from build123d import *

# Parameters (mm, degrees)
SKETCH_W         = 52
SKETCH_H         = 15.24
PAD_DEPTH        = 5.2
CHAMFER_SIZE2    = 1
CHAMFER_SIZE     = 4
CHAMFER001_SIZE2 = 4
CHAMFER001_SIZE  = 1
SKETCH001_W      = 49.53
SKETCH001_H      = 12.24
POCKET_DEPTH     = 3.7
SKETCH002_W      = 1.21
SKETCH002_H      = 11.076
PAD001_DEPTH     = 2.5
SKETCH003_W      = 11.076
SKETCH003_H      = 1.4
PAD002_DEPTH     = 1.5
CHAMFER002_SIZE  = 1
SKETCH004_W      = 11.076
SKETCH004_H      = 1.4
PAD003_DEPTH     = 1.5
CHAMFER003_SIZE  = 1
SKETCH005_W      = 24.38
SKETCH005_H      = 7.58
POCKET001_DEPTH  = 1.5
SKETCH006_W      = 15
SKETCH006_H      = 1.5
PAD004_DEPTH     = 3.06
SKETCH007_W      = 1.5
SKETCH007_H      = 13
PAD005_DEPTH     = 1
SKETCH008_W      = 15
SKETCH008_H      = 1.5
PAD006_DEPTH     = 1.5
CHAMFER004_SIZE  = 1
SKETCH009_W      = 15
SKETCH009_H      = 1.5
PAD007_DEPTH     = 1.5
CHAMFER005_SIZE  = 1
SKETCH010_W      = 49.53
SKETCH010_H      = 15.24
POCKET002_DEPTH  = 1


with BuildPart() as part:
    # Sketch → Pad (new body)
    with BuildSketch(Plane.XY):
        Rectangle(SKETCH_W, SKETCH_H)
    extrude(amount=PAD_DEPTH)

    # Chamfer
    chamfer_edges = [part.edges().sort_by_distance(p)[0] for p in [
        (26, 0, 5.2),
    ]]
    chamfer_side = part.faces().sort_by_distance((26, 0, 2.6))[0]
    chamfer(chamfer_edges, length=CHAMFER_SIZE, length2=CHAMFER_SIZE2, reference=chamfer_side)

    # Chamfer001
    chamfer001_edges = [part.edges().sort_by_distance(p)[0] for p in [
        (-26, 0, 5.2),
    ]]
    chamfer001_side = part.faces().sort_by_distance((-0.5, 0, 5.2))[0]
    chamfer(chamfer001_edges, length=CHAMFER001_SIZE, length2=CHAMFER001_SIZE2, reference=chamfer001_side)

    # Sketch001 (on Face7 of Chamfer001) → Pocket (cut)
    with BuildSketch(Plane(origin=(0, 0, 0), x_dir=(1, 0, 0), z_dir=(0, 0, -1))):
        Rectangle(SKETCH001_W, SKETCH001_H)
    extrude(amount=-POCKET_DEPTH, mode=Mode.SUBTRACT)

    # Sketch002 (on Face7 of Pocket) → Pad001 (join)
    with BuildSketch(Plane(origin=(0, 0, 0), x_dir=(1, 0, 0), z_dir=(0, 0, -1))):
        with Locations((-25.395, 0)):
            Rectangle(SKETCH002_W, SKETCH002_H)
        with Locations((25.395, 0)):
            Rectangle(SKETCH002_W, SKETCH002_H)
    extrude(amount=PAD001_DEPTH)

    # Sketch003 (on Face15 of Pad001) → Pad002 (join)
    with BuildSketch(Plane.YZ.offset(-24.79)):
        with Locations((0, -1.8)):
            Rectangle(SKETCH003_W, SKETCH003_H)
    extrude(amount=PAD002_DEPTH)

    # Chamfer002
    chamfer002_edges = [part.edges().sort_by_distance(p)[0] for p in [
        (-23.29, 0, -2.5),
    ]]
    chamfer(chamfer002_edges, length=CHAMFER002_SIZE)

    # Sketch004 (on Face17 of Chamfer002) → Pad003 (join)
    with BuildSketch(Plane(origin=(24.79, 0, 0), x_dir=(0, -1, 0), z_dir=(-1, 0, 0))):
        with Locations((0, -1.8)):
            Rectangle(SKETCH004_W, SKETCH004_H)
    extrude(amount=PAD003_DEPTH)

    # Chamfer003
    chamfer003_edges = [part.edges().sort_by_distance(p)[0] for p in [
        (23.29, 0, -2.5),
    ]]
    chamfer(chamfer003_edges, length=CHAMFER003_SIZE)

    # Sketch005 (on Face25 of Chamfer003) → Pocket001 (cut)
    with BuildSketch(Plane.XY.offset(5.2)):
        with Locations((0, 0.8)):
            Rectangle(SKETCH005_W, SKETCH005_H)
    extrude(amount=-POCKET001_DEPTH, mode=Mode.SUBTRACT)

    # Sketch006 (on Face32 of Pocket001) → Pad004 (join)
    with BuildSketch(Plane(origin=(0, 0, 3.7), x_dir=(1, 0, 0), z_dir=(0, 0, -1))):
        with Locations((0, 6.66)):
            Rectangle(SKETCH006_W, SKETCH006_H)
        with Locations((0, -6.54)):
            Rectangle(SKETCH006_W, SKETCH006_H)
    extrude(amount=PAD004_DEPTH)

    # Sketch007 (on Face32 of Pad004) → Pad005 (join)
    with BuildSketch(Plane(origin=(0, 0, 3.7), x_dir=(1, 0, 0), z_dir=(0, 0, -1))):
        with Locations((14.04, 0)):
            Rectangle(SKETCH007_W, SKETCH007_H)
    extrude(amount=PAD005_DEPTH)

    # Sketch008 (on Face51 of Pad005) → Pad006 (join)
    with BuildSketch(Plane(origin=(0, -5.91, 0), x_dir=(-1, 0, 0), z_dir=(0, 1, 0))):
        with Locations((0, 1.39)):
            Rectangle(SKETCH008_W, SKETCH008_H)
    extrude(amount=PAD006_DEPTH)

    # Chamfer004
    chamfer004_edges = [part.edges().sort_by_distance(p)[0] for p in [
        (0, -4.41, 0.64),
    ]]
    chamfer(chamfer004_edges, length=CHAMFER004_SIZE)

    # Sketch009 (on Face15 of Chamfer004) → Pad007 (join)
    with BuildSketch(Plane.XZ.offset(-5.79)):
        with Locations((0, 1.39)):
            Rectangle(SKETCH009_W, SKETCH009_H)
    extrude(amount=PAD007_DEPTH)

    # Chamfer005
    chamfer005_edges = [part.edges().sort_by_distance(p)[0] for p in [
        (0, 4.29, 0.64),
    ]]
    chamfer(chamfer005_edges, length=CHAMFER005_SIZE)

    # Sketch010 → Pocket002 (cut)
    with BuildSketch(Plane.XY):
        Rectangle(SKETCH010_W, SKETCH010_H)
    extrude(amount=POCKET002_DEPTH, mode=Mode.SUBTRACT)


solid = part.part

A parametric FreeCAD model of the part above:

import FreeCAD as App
import Part
import Sketcher

V = App.Vector


def edges_at(feature, points):
    """Names of the edges that pass closest to the given points."""
    edges = feature.Shape.Edges
    near = lambda p: min(range(len(edges)), key=lambda i: edges[i].distToShape(Part.Vertex(*p))[0])
    return sorted({f"Edge{near(p) + 1}" for p in points})


def add_polygon(sketch, points):
    """Adds a closed chain of lines whose ends are joined by coincident constraints."""
    first, n = sketch.GeometryCount, len(points)
    for a, b in zip(points, points[1:] + points[:1]):
        sketch.addGeometry(Part.LineSegment(App.Vector(*a, 0), App.Vector(*b, 0)), False)
    for i in range(n):
        sketch.addConstraint(Sketcher.Constraint("Coincident", first + i, 2, first + (i + 1) % n, 1))

doc = App.newDocument("Part")
body = doc.addObject("PartDesign::Body", "Body")

# Sketch on XY plane
sketch1 = body.newObject("Sketcher::SketchObject", "Sketch")
sketch1.AttachmentSupport = (doc.getObject("XY_Plane"), [""])
sketch1.MapMode = "FlatFace"
add_polygon(sketch1, [(-26, 8), (-26, -8), (26, -8), (26, 8)])  # lines 0-3
sketch1.addConstraint([
    Sketcher.Constraint("Vertical", 0),
    Sketcher.Constraint("Horizontal", 1),
    Sketcher.Constraint("Vertical", 2),
    Sketcher.Constraint("Horizontal", 3),
    Sketcher.Constraint("Symmetric", 0, 2, 2, 2, -1, 1),
    Sketcher.Constraint("DistanceX", 1, 1, 1, 2, 52.0),
    Sketcher.Constraint("DistanceY", 0, 2, 0, 1, 15.24),
])
pad1 = body.newObject("PartDesign::Pad", "Pad")
pad1.Profile = sketch1
pad1.Length = 5.2
doc.recompute()

chamfer = body.newObject("PartDesign::Chamfer", "Chamfer")
chamfer.Base = (pad1, edges_at(pad1, [(26, 0, 5.2)]))
chamfer.ChamferType = "Two distances"
chamfer.Size = 4
chamfer.Size2 = 1
doc.recompute()

chamfer2 = body.newObject("PartDesign::Chamfer", "Chamfer001")
chamfer2.Base = (chamfer, edges_at(chamfer, [(-26, 0, 5.2)]))
chamfer2.ChamferType = "Two distances"
chamfer2.Size = 1
chamfer2.Size2 = 4

# Sketch on XY plane
sketch2 = body.newObject("Sketcher::SketchObject", "Sketch001")
sketch2.AttachmentSupport = (doc.getObject("XY_Plane"), [""])
sketch2.MapMode = "FlatFace"
add_polygon(sketch2, [(-25, -6), (-25, 6), (25, 6), (25, -6)])  # lines 0-3
sketch2.addConstraint([
    Sketcher.Constraint("Vertical", 0),
    Sketcher.Constraint("Horizontal", 1),
    Sketcher.Constraint("Vertical", 2),
    Sketcher.Constraint("Horizontal", 3),
    Sketcher.Constraint("Symmetric", 0, 2, 2, 2, -1, 1),
    Sketcher.Constraint("DistanceX", 1, 1, 1, 2, 49.53),
    Sketcher.Constraint("DistanceY", 0, 1, 0, 2, 12.24),
])
pocket1 = body.newObject("PartDesign::Pocket", "Pocket")
pocket1.Profile = sketch2
pocket1.Length = 3.7
pocket1.Reversed = True

# Sketch on XY plane
sketch3 = body.newObject("Sketcher::SketchObject", "Sketch002")
sketch3.AttachmentSupport = (doc.getObject("XY_Plane"), [""])
sketch3.MapMode = "FlatFace"
add_polygon(sketch3, [(-26, -5.5), (-26, 5.5), (-24.8, 5.5), (-24.8, -5.5)])  # lines 0-3
add_polygon(sketch3, [(24.8, -5.5), (24.8, 5.5), (26, 5.5), (26, -5.5)])  # lines 4-7
sketch3.addConstraint([
    Sketcher.Constraint("Vertical", 0),
    Sketcher.Constraint("Horizontal", 1),
    Sketcher.Constraint("Vertical", 2),
    Sketcher.Constraint("Horizontal", 3),
    Sketcher.Constraint("Vertical", 4),
    Sketcher.Constraint("Horizontal", 5),
    Sketcher.Constraint("Vertical", 6),
    Sketcher.Constraint("Horizontal", 7),
    Sketcher.Constraint("Symmetric", 2, 2, 4, 2, -1, 1),
    Sketcher.Constraint("Symmetric", 0, 2, 6, 2, -1, 1),
    Sketcher.Constraint("Horizontal", 1, 2, 4, 2),
    Sketcher.Constraint("DistanceX", 0, 2, -1, 1, 26.0),
    Sketcher.Constraint("DistanceX", 1, 1, 1, 2, 1.21),
    Sketcher.Constraint("DistanceY", 0, 1, 0, 2, 11.076),
])
pad2 = body.newObject("PartDesign::Pad", "Pad001")
pad2.Profile = sketch3
pad2.Length = 2.5
pad2.Reversed = True

# Sketch on YZ plane
sketch4 = body.newObject("Sketcher::SketchObject", "Sketch003")
sketch4.AttachmentSupport = (doc.getObject("YZ_Plane"), [""])
sketch4.MapMode = "FlatFace"
sketch4.AttachmentOffset = App.Placement(V(0, 0, -24.79), App.Rotation())
add_polygon(sketch4, [(-5.5, -1.1), (-5.5, -2.5), (5.5, -2.5), (5.5, -1.1)])  # lines 0-3
sketch4.addConstraint([
    Sketcher.Constraint("Vertical", 0),
    Sketcher.Constraint("Horizontal", 1),
    Sketcher.Constraint("Vertical", 2),
    Sketcher.Constraint("Horizontal", 3),
    Sketcher.Constraint("DistanceY", 0, 2, 0, 1, 1.4),
    Sketcher.Constraint("DistanceY", 0, 2, -1, 1, 2.5),
    Sketcher.Constraint("DistanceX", 1, 1, 1, 2, 11.076),
    Sketcher.Constraint("DistanceX", 0, 2, -1, 1, 5.538),
])
pad3 = body.newObject("PartDesign::Pad", "Pad002")
pad3.Profile = sketch4
pad3.Length = 1.5
doc.recompute()

chamfer3 = body.newObject("PartDesign::Chamfer", "Chamfer002")
chamfer3.Base = (pad3, edges_at(pad3, [(-23.29, 0, -2.5)]))
chamfer3.Size = 1

# Sketch on YZ plane
sketch5 = body.newObject("Sketcher::SketchObject", "Sketch004")
sketch5.AttachmentSupport = (doc.getObject("YZ_Plane"), [""])
sketch5.MapMode = "FlatFace"
sketch5.AttachmentOffset = App.Placement(V(0, 0, 24.79), App.Rotation())
add_polygon(sketch5, [(5.5, -1.1), (5.5, -2.5), (-5.5, -2.5), (-5.5, -1.1)])  # lines 0-3
sketch5.addConstraint([
    Sketcher.Constraint("Vertical", 0),
    Sketcher.Constraint("Horizontal", 1),
    Sketcher.Constraint("Vertical", 2),
    Sketcher.Constraint("Horizontal", 3),
    Sketcher.Constraint("DistanceY", 0, 2, 0, 1, 1.4),
    Sketcher.Constraint("DistanceY", 0, 2, -1, 1, 2.5),
    Sketcher.Constraint("DistanceX", 1, 2, 1, 1, 11.076),
    Sketcher.Constraint("DistanceX", -1, 1, 0, 2, 5.538),
])
pad4 = body.newObject("PartDesign::Pad", "Pad003")
pad4.Profile = sketch5
pad4.Length = 1.5
pad4.Reversed = True
doc.recompute()

chamfer4 = body.newObject("PartDesign::Chamfer", "Chamfer003")
chamfer4.Base = (pad4, edges_at(pad4, [(23.29, 0, -2.5)]))
chamfer4.Size = 1

# Sketch on XY plane
sketch6 = body.newObject("Sketcher::SketchObject", "Sketch005")
sketch6.AttachmentSupport = (doc.getObject("XY_Plane"), [""])
sketch6.MapMode = "FlatFace"
sketch6.AttachmentOffset = App.Placement(V(0, 0, 5.2), App.Rotation())
add_polygon(sketch6, [(-12, 5), (-12, -3), (12, -3), (12, 5)])  # lines 0-3
sketch6.addConstraint([
    Sketcher.Constraint("Vertical", 0),
    Sketcher.Constraint("Horizontal", 1),
    Sketcher.Constraint("Vertical", 2),
    Sketcher.Constraint("Horizontal", 3),
    Sketcher.Constraint("DistanceX", 1, 1, 1, 2, 24.38),
    Sketcher.Constraint("DistanceY", 0, 2, 0, 1, 7.58),
    Sketcher.Constraint("DistanceX", 0, 2, -1, 1, 12.19),
    Sketcher.Constraint("DistanceY", 0, 2, -1, 1, 2.99),
])
pocket2 = body.newObject("PartDesign::Pocket", "Pocket001")
pocket2.Profile = sketch6
pocket2.Length = 1.5

# Sketch on XY plane
sketch7 = body.newObject("Sketcher::SketchObject", "Sketch006")
sketch7.AttachmentSupport = (doc.getObject("XY_Plane"), [""])
sketch7.MapMode = "FlatFace"
sketch7.AttachmentOffset = App.Placement(V(0, 0, 3.7), App.Rotation())
add_polygon(sketch7, [(-7.5, -7.4), (-7.5, -5.9), (7.5, -5.9), (7.5, -7.4)])  # lines 0-3
add_polygon(sketch7, [(-7.5, 5.8), (-7.5, 7.3), (7.5, 7.3), (7.5, 5.8)])  # lines 4-7
sketch7.addConstraint([
    Sketcher.Constraint("Vertical", 0),
    Sketcher.Constraint("Horizontal", 1),
    Sketcher.Constraint("Vertical", 2),
    Sketcher.Constraint("Horizontal", 3),
    Sketcher.Constraint("Vertical", 4),
    Sketcher.Constraint("Horizontal", 5),
    Sketcher.Constraint("Vertical", 6),
    Sketcher.Constraint("Horizontal", 7),
    Sketcher.Constraint("Vertical", 3, 2, 4, 2),
    Sketcher.Constraint("Vertical", 2, 2, 5, 2),
    Sketcher.Constraint("Equal", 2, 4),
    Sketcher.Constraint("DistanceX", 1, 1, 1, 2, 15.0),
    Sketcher.Constraint("DistanceY", 0, 1, 0, 2, 1.5),
    Sketcher.Constraint("DistanceX", 0, 2, -1, 1, 7.5),
    Sketcher.Constraint("DistanceY", 0, 2, 4, 2, 13.2),
    Sketcher.Constraint("DistanceY", 0, 2, -1, 1, 5.91),
])
pad5 = body.newObject("PartDesign::Pad", "Pad004")
pad5.Profile = sketch7
pad5.Length = 3.06
pad5.Reversed = True

# Sketch on XY plane
sketch8 = body.newObject("Sketcher::SketchObject", "Sketch007")
sketch8.AttachmentSupport = (doc.getObject("XY_Plane"), [""])
sketch8.MapMode = "FlatFace"
sketch8.AttachmentOffset = App.Placement(V(0, 0, 3.7), App.Rotation())
add_polygon(sketch8, [(13.3, -6.5), (13.3, 6.5), (14.8, 6.5), (14.8, -6.5)])  # lines 0-3
sketch8.addConstraint([
    Sketcher.Constraint("Vertical", 0),
    Sketcher.Constraint("Horizontal", 1),
    Sketcher.Constraint("Vertical", 2),
    Sketcher.Constraint("Horizontal", 3),
    Sketcher.Constraint("DistanceY", 0, 1, 0, 2, 13.0),
    Sketcher.Constraint("DistanceX", 1, 1, 1, 2, 1.5),
    Sketcher.Constraint("DistanceY", -1, 1, 0, 2, 6.5),
    Sketcher.Constraint("DistanceX", -1, 1, 0, 2, 13.29),
])
pad6 = body.newObject("PartDesign::Pad", "Pad005")
pad6.Profile = sketch8
pad6.Length = 1
pad6.Reversed = True

# Sketch on XZ plane
sketch9 = body.newObject("Sketcher::SketchObject", "Sketch008")
sketch9.AttachmentSupport = (doc.getObject("XZ_Plane"), [""])
sketch9.MapMode = "FlatFace"
sketch9.AttachmentOffset = App.Placement(V(0, 0, 5.91), App.Rotation())
add_polygon(sketch9, [(7.5, 2.1), (7.5, 0.6), (-7.5, 0.6), (-7.5, 2.1)])  # lines 0-3
sketch9.addConstraint([
    Sketcher.Constraint("Vertical", 0),
    Sketcher.Constraint("Horizontal", 1),
    Sketcher.Constraint("Vertical", 2),
    Sketcher.Constraint("Horizontal", 3),
    Sketcher.Constraint("DistanceX", 1, 2, 1, 1, 15.0),
    Sketcher.Constraint("DistanceY", 0, 2, 0, 1, 1.5),
    Sketcher.Constraint("DistanceX", -1, 1, 0, 2, 7.5),
    Sketcher.Constraint("DistanceY", -1, 1, 0, 2, 0.64),
])
pad7 = body.newObject("PartDesign::Pad", "Pad006")
pad7.Profile = sketch9
pad7.Length = 1.5
pad7.Reversed = True
doc.recompute()

chamfer5 = body.newObject("PartDesign::Chamfer", "Chamfer004")
chamfer5.Base = (pad7, edges_at(pad7, [(0, -4.41, 0.64)]))
chamfer5.Size = 1

# Sketch on XZ plane
sketch10 = body.newObject("Sketcher::SketchObject", "Sketch009")
sketch10.AttachmentSupport = (doc.getObject("XZ_Plane"), [""])
sketch10.MapMode = "FlatFace"
sketch10.AttachmentOffset = App.Placement(V(0, 0, -5.79), App.Rotation())
add_polygon(sketch10, [(-7.5, 2.1), (-7.5, 0.6), (7.5, 0.6), (7.5, 2.1)])  # lines 0-3
sketch10.addConstraint([
    Sketcher.Constraint("Vertical", 0),
    Sketcher.Constraint("Horizontal", 1),
    Sketcher.Constraint("Vertical", 2),
    Sketcher.Constraint("Horizontal", 3),
    Sketcher.Constraint("DistanceX", 1, 1, 1, 2, 15.0),
    Sketcher.Constraint("DistanceY", 0, 2, 0, 1, 1.5),
    Sketcher.Constraint("DistanceX", 0, 2, -1, 1, 7.5),
    Sketcher.Constraint("DistanceY", -1, 1, 0, 2, 0.64),
])
pad8 = body.newObject("PartDesign::Pad", "Pad007")
pad8.Profile = sketch10
pad8.Length = 1.5
doc.recompute()

chamfer6 = body.newObject("PartDesign::Chamfer", "Chamfer005")
chamfer6.Base = (pad8, edges_at(pad8, [(0, 4.29, 0.64)]))
chamfer6.Size = 1

# Sketch on XY plane
sketch11 = body.newObject("Sketcher::SketchObject", "Sketch010")
sketch11.AttachmentSupport = (doc.getObject("XY_Plane"), [""])
sketch11.MapMode = "FlatFace"
add_polygon(sketch11, [(-25, 8), (-25, -8), (25, -8), (25, 8)])  # lines 0-3
sketch11.addConstraint([
    Sketcher.Constraint("Vertical", 0),
    Sketcher.Constraint("Horizontal", 1),
    Sketcher.Constraint("Vertical", 2),
    Sketcher.Constraint("Horizontal", 3),
    Sketcher.Constraint("Symmetric", 0, 2, 2, 2, -1, 1),
    Sketcher.Constraint("DistanceX", 1, 1, 1, 2, 49.53),
    Sketcher.Constraint("DistanceY", 0, 2, 0, 1, 15.24),
])
pocket3 = body.newObject("PartDesign::Pocket", "Pocket002")
pocket3.Profile = sketch11
pocket3.Length = 1
pocket3.Reversed = True

doc.recompute()
